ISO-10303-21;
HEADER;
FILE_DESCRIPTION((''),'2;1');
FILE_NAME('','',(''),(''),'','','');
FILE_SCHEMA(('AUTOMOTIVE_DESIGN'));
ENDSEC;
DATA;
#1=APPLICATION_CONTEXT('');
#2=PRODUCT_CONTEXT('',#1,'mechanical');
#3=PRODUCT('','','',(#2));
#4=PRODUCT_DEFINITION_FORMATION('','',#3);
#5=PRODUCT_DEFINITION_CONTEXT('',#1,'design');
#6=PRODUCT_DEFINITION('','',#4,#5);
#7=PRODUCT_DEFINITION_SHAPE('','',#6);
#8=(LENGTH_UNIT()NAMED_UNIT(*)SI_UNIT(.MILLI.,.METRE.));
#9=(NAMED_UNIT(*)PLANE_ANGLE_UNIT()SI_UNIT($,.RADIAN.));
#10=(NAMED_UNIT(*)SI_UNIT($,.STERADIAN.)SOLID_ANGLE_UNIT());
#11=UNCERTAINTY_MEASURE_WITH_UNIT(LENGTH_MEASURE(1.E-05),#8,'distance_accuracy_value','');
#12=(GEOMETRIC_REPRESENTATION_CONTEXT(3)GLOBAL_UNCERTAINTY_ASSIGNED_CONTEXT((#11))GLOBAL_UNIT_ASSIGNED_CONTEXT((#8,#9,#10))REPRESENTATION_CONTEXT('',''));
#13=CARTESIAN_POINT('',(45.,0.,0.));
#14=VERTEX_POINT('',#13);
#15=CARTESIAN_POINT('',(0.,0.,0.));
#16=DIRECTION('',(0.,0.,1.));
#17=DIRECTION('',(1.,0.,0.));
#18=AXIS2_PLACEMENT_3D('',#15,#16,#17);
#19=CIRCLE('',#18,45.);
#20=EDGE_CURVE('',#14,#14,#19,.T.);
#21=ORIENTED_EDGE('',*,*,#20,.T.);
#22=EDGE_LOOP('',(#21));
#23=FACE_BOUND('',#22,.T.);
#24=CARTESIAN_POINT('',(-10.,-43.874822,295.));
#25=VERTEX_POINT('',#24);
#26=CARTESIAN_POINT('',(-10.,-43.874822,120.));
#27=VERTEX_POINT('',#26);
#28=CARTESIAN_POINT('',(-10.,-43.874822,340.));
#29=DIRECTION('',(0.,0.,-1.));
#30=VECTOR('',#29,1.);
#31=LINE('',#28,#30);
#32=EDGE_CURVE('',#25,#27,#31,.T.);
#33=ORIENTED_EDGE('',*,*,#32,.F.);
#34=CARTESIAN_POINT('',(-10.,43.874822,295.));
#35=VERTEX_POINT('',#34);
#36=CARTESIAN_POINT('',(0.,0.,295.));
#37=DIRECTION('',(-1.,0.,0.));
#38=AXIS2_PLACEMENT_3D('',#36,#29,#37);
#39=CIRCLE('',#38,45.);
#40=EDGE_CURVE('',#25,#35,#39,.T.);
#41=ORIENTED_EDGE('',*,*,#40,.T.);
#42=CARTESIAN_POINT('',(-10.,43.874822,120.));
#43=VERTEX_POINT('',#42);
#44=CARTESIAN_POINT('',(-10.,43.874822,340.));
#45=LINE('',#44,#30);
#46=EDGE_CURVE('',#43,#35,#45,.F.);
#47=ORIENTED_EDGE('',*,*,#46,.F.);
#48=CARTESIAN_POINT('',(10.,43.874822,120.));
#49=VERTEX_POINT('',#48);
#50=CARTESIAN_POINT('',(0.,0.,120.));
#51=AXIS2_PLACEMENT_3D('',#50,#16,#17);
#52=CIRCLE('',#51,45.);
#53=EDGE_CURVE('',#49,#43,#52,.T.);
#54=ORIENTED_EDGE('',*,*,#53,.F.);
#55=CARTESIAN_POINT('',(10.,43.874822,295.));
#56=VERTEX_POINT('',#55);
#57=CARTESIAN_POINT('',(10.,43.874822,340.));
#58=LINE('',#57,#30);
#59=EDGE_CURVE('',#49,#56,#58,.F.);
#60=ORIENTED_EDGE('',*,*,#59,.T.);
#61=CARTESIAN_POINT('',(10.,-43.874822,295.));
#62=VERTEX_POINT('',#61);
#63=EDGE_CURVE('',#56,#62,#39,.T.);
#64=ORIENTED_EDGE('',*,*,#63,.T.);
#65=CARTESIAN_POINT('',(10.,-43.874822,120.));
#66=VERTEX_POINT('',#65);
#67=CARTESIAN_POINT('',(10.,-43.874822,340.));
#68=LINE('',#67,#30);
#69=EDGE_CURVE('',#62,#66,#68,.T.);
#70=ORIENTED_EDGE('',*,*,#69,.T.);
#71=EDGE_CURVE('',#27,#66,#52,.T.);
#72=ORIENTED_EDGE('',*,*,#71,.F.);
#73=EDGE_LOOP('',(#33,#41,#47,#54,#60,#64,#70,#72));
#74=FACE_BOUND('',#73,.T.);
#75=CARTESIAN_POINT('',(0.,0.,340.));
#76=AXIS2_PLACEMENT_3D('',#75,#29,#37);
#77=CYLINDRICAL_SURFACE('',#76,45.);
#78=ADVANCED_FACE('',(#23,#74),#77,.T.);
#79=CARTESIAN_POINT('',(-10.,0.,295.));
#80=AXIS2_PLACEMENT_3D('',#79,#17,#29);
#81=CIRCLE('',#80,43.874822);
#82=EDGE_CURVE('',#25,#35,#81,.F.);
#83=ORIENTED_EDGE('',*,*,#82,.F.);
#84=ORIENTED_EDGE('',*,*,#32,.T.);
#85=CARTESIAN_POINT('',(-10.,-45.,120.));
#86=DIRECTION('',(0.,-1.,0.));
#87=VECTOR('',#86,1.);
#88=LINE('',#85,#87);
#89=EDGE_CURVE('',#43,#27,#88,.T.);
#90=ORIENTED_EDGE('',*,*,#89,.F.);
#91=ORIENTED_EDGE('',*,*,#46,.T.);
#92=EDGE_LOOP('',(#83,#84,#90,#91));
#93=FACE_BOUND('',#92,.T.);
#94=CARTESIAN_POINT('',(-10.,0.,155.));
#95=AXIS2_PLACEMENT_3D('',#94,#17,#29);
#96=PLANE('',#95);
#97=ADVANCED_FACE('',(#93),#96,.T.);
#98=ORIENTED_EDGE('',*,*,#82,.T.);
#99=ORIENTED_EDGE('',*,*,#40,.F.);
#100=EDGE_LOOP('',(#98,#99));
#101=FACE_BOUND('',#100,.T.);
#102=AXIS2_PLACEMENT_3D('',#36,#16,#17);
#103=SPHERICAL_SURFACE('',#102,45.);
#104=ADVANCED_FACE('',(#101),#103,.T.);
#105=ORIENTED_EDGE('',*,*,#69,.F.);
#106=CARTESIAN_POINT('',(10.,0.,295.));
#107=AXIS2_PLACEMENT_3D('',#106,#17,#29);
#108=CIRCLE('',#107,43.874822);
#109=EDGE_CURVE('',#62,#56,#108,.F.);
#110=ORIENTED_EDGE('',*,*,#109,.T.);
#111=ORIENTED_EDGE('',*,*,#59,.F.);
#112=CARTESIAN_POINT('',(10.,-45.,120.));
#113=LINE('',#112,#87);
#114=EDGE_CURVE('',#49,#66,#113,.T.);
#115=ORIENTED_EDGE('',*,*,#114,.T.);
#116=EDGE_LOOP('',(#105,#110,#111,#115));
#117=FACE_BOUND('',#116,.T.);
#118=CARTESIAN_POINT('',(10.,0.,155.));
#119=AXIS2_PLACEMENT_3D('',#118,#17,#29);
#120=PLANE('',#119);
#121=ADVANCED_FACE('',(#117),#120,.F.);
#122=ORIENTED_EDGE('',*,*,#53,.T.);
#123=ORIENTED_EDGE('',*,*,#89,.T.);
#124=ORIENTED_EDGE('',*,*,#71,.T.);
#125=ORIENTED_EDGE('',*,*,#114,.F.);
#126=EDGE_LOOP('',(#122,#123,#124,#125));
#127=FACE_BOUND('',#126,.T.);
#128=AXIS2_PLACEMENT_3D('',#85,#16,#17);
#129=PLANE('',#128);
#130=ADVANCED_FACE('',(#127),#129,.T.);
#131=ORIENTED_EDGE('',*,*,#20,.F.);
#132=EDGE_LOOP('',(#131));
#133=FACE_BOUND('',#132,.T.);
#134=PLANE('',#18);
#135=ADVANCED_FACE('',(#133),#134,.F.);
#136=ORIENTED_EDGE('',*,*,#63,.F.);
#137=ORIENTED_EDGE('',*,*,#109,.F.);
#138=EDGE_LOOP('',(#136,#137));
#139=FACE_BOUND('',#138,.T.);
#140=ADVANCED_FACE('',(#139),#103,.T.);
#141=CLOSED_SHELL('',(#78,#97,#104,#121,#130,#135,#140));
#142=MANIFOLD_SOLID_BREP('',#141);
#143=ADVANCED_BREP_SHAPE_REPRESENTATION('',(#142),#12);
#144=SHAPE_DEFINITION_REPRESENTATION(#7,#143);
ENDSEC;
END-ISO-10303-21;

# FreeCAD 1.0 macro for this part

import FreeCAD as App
import Part
import Sketcher


def edges_at(feature, points):
    """Names of the edges that pass closest to the given points."""
    edges = feature.Shape.Edges
    near = lambda p: min(range(len(edges)), key=lambda i: edges[i].distToShape(Part.Vertex(*p))[0])
    return sorted({f"Edge{near(p) + 1}" for p in points})

doc = App.newDocument("Part")
params = doc.addObject("Spreadsheet::Sheet", "Params")
for row, (alias, value) in enumerate([
    ("sketch1_diameter", "90 mm"),
    ("pad1_length", "340 mm"),
    ("fillet_radius", "45 mm"),
    ("sketch2_width", "90 mm"),
    ("sketch2_height", "150 mm"),
    ("pocket1_length", "20 mm"),
], start=1):
    params.set(f"A{row}", alias)
    params.set(f"B{row}", "=" + value)
    params.setAlias(f"B{row}", alias)

body = doc.addObject("PartDesign::Body", "Body")

# Sketch on XY plane
sketch1 = body.newObject("Sketcher::SketchObject", "Sketch")
sketch1.AttachmentSupport = (doc.getObject("XY_Plane"), [""])
sketch1.MapMode = "FlatFace"
sketch1.addGeometry(Part.Circle(App.Vector(0, 0, 0), App.Vector(0, 0, 1), 45), False)
sketch1.addConstraint([
    Sketcher.Constraint("Coincident", 0, 3, -1, 1),
    Sketcher.Constraint("Diameter", 0, 90.0),
])
sketch1.setExpression("Constraints[1]", "Params.sketch1_diameter")
pad1 = body.newObject("PartDesign::Pad", "Pad")
pad1.Profile = sketch1
pad1.setExpression("Length", "Params.pad1_length")
doc.recompute()

fillet = body.newObject("PartDesign::Fillet", "Fillet")
fillet.Base = (pad1, edges_at(pad1, [(-45, 0, 340)]))
fillet.setExpression("Radius", "Params.fillet_radius")

# Sketch on YZ plane
sketch2 = body.newObject("Sketcher::SketchObject", "Sketch001")
sketch2.AttachmentSupport = (doc.getObject("YZ_Plane"), [""])
sketch2.MapMode = "FlatFace"
sketch2.addGeometry([
    Part.LineSegment(App.Vector(82, 377, 0), App.Vector(-82, 377, 0)),  # 0
    Part.LineSegment(App.Vector(-82, 377, 0), App.Vector(-82, -37, 0)),  # 1
    Part.LineSegment(App.Vector(-82, -37, 0), App.Vector(82, -37, 0)),  # 2
    Part.LineSegment(App.Vector(82, -37, 0), App.Vector(82, 377, 0)),  # 3
    Part.LineSegment(App.Vector(-45, -30, 0), App.Vector(-45, 120, 0)),  # 4
    Part.LineSegment(App.Vector(-45, 120, 0), App.Vector(45, 120, 0)),  # 5
    Part.LineSegment(App.Vector(45, 120, 0), App.Vector(45, -30, 0)),  # 6
    Part.LineSegment(App.Vector(45, -30, 0), App.Vector(-45, -30, 0)),  # 7
], False)
sketch2.addConstraint([
    Sketcher.Constraint("Coincident", 0, 2, 1, 1),
    Sketcher.Constraint("Coincident", 1, 2, 2, 1),
    Sketcher.Constraint("Coincident", 2, 2, 3, 1),
    Sketcher.Constraint("Coincident", 3, 2, 0, 1),
    Sketcher.Constraint("Coincident", 4, 2, 5, 1),
    Sketcher.Constraint("Coincident", 5, 2, 6, 1),
    Sketcher.Constraint("Coincident", 6, 2, 7, 1),
    Sketcher.Constraint("Coincident", 7, 2, 4, 1),
    Sketcher.Constraint("Horizontal", 0),
    Sketcher.Constraint("Vertical", 1),
    Sketcher.Constraint("Horizontal", 2),
    Sketcher.Constraint("Vertical", 3),
    Sketcher.Constraint("Vertical", 4),
    Sketcher.Constraint("Horizontal", 5),
    Sketcher.Constraint("Vertical", 6),
    Sketcher.Constraint("Horizontal", 7),
    Sketcher.Constraint("DistanceX", 5, 1, 5, 2, 90.0),
    Sketcher.Constraint("DistanceY", 4, 1, 4, 2, 150.0),
    Sketcher.Constraint("DistanceX", 4, 2, -1, 1, 45.0),
    Sketcher.Constraint("DistanceY", -1, 1, 4, 2, 120.0),
    Sketcher.Constraint("DistanceX", 0, 2, 0, 1, 164.608),
    Sketcher.Constraint("DistanceY", 1, 2, 1, 1, 414.608),
    Sketcher.Constraint("DistanceX", 0, 2, -1, 1, 82.304),
    Sketcher.Constraint("DistanceY", -1, 1, 0, 2, 377.304),
])
sketch2.setExpression("Constraints[16]", "Params.sketch2_width")
sketch2.setExpression("Constraints[17]", "Params.sketch2_height")
pocket1 = body.newObject("PartDesign::Pocket", "Pocket")
pocket1.Profile = sketch2
pocket1.setExpression("Length", "Params.pocket1_length")
pocket1.Midplane = True

doc.recompute()
